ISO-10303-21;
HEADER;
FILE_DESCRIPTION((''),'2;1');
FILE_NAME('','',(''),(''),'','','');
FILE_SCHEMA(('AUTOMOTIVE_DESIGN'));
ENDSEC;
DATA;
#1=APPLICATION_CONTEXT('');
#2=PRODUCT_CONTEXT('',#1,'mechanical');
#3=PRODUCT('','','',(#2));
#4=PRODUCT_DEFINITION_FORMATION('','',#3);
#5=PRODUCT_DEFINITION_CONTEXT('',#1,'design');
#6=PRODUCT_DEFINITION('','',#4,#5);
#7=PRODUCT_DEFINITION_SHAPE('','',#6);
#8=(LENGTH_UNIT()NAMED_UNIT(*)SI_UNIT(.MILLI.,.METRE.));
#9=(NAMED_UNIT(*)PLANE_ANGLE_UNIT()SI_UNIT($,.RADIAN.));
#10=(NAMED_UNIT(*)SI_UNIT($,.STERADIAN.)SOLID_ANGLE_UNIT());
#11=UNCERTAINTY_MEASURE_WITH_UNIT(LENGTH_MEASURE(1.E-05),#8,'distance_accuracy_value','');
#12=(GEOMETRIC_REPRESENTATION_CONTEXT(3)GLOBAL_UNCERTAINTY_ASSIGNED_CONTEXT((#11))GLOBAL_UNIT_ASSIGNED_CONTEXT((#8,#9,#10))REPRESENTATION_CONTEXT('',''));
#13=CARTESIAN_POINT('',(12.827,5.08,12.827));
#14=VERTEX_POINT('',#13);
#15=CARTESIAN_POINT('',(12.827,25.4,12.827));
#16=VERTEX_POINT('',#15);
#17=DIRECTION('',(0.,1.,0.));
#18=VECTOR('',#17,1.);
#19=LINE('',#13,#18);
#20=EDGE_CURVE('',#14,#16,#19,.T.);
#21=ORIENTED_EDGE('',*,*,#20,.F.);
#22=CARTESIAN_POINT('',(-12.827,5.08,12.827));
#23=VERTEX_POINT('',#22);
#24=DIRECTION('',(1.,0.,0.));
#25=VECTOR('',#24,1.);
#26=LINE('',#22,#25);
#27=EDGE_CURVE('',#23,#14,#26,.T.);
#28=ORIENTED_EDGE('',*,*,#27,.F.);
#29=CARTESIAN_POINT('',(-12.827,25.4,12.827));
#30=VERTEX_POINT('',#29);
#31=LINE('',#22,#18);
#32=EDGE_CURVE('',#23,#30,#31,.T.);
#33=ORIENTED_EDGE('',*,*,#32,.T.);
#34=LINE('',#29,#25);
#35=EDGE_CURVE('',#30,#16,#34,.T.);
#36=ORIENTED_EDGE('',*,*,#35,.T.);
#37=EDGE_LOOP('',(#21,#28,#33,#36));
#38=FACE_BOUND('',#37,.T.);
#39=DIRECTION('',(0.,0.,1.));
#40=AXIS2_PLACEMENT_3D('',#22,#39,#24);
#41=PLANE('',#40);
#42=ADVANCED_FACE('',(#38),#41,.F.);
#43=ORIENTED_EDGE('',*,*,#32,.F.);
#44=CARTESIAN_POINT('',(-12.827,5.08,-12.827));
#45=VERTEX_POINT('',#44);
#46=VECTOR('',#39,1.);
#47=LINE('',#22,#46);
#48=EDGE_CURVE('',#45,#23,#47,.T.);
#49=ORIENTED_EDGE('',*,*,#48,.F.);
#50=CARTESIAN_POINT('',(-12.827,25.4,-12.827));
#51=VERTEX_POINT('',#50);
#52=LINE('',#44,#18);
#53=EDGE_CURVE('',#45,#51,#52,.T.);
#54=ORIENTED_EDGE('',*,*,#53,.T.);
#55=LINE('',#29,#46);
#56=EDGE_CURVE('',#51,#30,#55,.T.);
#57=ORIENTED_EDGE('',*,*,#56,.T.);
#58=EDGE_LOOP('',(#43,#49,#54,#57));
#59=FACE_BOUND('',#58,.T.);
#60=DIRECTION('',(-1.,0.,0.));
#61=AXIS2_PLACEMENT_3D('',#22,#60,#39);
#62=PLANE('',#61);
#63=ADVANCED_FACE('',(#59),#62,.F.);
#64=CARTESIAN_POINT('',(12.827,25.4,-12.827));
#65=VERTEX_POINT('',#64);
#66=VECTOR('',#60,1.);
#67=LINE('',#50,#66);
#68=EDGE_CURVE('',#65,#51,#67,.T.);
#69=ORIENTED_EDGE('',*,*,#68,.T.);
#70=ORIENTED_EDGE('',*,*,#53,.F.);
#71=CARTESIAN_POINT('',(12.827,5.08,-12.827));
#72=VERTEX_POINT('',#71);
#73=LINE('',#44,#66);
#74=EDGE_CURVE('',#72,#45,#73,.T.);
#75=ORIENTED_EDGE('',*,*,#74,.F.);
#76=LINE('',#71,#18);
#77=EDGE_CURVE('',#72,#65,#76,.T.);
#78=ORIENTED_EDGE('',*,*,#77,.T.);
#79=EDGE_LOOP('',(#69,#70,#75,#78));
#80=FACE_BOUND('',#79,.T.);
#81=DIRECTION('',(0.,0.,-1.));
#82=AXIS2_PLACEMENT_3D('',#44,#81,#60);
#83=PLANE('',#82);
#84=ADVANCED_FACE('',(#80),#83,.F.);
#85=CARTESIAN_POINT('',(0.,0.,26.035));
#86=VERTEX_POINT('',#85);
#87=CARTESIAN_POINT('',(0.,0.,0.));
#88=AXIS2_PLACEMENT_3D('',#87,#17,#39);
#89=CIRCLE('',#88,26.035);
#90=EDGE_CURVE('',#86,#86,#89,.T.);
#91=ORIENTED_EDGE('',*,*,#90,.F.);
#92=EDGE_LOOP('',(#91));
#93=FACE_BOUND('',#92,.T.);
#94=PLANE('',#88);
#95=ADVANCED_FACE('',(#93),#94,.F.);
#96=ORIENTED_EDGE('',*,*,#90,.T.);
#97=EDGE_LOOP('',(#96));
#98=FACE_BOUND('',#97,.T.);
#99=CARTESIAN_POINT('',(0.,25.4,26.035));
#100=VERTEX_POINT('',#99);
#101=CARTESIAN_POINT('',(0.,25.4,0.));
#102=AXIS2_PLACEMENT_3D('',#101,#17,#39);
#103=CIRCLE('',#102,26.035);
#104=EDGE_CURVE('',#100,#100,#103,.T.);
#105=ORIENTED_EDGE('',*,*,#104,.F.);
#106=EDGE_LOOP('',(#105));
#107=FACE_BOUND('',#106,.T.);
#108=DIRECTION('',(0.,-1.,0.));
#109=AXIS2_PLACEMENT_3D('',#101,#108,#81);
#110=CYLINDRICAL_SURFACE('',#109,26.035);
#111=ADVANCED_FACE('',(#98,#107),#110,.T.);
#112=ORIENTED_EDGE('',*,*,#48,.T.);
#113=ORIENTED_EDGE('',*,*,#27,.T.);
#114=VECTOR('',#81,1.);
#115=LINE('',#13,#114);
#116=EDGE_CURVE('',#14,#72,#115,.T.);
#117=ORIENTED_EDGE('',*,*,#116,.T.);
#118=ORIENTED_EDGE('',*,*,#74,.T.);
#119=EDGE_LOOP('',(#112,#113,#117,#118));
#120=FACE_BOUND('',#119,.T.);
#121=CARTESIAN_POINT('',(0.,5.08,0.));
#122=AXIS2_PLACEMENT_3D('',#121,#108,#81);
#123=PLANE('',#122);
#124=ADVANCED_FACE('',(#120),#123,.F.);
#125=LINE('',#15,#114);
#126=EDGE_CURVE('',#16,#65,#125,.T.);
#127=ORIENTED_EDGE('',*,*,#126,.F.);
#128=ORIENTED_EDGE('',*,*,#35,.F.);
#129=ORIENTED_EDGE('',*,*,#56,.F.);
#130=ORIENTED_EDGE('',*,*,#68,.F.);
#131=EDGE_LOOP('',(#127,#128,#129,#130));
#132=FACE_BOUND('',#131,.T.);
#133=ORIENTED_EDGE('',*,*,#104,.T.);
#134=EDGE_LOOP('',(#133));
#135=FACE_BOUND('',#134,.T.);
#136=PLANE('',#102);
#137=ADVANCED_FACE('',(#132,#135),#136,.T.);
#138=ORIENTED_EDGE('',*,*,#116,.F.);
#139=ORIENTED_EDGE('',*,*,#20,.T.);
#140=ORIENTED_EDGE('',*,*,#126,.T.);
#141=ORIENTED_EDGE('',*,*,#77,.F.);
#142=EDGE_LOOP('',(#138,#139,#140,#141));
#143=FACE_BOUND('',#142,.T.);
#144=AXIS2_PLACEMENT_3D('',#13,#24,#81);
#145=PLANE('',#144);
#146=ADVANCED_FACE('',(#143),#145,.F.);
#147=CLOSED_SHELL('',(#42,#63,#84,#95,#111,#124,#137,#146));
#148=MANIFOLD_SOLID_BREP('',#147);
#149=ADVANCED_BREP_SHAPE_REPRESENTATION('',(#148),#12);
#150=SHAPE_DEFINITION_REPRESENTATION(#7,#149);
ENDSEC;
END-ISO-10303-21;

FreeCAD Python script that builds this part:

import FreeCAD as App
import Part
import Sketcher
Q = App.Units.Quantity

doc = App.newDocument("Part")
params = doc.addObject("Spreadsheet::Sheet", "Params")
for row, (alias, value) in enumerate([
    ("sketch1_diameter", "2.05 in"),
    ("pad1_length", "1 in"),
    ("sketch2_width", "1.01 in"),
    ("pocket1_length", "0.8 in"),
], start=1):
    params.set(f"A{row}", alias)
    params.set(f"B{row}", "=" + value)
    params.setAlias(f"B{row}", alias)

body = doc.addObject("PartDesign::Body", "Body")

sketch1 = doc.addObject("Sketcher::SketchObject", "Sketch")
body.addObject(sketch1)
sketch1.AttachmentSupport = (doc.XZ_Plane, [""])
sketch1.MapMode = "FlatFace"
sketch1.addGeometry(Part.Circle(App.Vector(0, 0, 0), App.Vector(0, 0, 1), 26), False)
sketch1.addConstraint([
    Sketcher.Constraint("Coincident", 0, 3, -1, 1),
    Sketcher.Constraint("Diameter", 0, Q("2.05 in")),
])
sketch1.setExpression("Constraints[1]", "Params.sketch1_diameter")
pad1 = doc.addObject("PartDesign::Pad", "Pad")
body.addObject(pad1)
pad1.Profile = sketch1
pad1.setExpression("Length", "Params.pad1_length")
pad1.Reversed = True

sketch2 = doc.addObject("Sketcher::SketchObject", "Sketch001")
body.addObject(sketch2)
sketch2.AttachmentSupport = (doc.XZ_Plane, [""])
sketch2.MapMode = "FlatFace"
sketch2.AttachmentOffset = App.Placement(App.Vector(0, 0, -1 * 25.4), App.Rotation())
sketch2.addGeometry([
    Part.LineSegment(App.Vector(-13, -13, 0), App.Vector(-13, 13, 0)),
    Part.LineSegment(App.Vector(-13, 13, 0), App.Vector(13, 13, 0)),
    Part.LineSegment(App.Vector(13, 13, 0), App.Vector(13, -13, 0)),
    Part.LineSegment(App.Vector(13, -13, 0), App.Vector(-13, -13, 0)),
], False)
sketch2.addConstraint([
    Sketcher.Constraint("Coincident", 0, 2, 1, 1),
    Sketcher.Constraint("Coincident", 1, 2, 2, 1),
    Sketcher.Constraint("Coincident", 2, 2, 3, 1),
    Sketcher.Constraint("Coincident", 3, 2, 0, 1),
    Sketcher.Constraint("Vertical", 0),
    Sketcher.Constraint("Horizontal", 1),
    Sketcher.Constraint("Vertical", 2),
    Sketcher.Constraint("Horizontal", 3),
    Sketcher.Constraint("Symmetric", 0, 2, 2, 2, -1, 1),
    Sketcher.Constraint("Equal", 3, 0),
    Sketcher.Constraint("DistanceX", 1, 1, 1, 2, Q("1.01 in")),
])
sketch2.setExpression("Constraints[10]", "Params.sketch2_width")
pocket1 = doc.addObject("PartDesign::Pocket", "Pocket")
body.addObject(pocket1)
pocket1.Profile = sketch2
pocket1.setExpression("Length", "Params.pocket1_length")
pocket1.Reversed = True

doc.recompute()
